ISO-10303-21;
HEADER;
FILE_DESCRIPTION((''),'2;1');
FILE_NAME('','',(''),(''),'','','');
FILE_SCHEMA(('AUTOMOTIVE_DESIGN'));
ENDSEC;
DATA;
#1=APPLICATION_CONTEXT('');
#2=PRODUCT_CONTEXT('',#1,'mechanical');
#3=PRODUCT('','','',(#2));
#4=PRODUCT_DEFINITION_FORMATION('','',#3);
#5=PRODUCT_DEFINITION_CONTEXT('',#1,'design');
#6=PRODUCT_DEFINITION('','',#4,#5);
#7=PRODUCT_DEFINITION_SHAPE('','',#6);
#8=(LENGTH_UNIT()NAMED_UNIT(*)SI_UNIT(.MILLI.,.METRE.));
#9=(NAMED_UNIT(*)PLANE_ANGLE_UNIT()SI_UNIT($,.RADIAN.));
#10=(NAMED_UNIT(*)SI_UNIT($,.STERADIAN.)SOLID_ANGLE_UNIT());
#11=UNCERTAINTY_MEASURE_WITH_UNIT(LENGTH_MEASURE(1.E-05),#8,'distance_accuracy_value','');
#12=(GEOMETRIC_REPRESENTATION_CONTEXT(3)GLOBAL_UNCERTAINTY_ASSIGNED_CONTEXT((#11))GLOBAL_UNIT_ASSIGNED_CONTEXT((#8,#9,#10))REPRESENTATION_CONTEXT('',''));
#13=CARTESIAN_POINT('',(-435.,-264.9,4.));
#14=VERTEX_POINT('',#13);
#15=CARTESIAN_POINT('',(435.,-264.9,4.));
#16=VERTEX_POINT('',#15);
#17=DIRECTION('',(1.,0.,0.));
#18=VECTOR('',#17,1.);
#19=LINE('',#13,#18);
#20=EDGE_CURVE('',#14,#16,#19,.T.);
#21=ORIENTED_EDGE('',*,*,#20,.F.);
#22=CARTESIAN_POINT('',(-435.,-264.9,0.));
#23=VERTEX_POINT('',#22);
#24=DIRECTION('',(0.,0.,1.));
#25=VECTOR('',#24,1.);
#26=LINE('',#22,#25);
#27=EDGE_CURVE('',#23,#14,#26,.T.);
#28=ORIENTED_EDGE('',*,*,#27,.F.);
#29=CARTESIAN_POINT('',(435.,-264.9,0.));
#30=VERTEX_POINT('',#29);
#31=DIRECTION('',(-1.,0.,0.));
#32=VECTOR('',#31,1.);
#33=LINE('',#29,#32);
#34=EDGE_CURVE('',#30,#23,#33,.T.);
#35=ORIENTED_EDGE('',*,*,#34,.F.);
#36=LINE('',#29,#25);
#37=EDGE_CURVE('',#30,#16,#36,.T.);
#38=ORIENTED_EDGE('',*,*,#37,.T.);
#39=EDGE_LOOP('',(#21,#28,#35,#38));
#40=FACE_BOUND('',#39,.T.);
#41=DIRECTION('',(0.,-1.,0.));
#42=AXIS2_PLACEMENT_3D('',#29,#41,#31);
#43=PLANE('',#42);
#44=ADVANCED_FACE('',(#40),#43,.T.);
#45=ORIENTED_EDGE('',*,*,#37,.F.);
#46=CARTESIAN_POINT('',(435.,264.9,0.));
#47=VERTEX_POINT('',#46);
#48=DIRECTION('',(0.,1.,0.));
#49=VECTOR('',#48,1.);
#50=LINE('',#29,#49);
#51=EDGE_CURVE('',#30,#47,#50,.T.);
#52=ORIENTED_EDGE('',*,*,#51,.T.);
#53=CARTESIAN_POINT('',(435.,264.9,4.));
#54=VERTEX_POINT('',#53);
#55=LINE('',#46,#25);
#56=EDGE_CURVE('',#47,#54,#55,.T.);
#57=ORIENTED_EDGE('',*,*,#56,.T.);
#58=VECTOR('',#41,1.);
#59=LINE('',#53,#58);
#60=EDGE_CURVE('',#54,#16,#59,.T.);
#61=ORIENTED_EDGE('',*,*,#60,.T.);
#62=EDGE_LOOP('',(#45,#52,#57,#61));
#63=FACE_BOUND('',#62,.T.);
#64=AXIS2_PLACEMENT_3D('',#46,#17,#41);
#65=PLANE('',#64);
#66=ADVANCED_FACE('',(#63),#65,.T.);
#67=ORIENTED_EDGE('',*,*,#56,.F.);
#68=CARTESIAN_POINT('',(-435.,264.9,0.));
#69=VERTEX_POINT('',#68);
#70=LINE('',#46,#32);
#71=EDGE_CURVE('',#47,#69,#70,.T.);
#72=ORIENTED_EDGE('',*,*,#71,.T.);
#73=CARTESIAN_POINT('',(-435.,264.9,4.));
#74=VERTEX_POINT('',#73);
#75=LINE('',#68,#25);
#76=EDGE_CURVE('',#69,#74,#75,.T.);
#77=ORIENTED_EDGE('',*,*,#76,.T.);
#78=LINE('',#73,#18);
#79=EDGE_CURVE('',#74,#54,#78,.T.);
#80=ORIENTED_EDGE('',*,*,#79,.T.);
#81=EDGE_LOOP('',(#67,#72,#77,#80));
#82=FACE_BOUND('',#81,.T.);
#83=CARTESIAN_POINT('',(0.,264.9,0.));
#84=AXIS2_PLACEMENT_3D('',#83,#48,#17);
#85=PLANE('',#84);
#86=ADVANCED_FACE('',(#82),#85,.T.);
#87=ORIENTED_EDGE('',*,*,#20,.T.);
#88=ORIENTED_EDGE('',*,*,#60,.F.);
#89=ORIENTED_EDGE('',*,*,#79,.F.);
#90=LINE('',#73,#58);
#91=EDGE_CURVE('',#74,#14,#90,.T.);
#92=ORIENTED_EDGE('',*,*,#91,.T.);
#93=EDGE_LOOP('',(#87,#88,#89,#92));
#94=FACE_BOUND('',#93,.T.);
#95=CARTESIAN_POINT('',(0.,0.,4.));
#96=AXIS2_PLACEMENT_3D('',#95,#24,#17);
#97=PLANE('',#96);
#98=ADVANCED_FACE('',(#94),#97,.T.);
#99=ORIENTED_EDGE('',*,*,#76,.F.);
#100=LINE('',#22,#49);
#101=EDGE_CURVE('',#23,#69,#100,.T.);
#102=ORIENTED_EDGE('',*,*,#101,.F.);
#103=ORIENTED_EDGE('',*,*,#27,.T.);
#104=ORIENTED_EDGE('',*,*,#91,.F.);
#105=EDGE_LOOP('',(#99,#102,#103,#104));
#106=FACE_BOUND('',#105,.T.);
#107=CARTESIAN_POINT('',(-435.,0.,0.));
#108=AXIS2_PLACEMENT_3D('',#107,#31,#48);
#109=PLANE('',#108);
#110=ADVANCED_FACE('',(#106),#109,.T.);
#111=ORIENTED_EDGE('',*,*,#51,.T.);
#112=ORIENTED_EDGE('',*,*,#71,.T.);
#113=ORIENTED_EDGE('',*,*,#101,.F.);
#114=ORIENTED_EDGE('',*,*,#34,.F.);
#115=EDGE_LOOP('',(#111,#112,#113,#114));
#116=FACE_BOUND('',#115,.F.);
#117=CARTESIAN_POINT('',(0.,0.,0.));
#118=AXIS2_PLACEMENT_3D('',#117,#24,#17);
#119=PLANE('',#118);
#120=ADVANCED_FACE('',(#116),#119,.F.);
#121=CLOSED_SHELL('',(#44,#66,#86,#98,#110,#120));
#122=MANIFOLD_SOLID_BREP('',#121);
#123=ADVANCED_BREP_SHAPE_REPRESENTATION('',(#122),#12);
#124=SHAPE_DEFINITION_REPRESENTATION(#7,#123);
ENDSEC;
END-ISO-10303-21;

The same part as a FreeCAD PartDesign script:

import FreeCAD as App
import Part
import Sketcher
Q = App.Units.Quantity


def add_polygon(sketch, points):
    """Adds a closed chain of lines whose ends are joined by coincident constraints."""
    first, n = sketch.GeometryCount, len(points)
    for a, b in zip(points, points[1:] + points[:1]):
        sketch.addGeometry(Part.LineSegment(App.Vector(*a, 0), App.Vector(*b, 0)), False)
    for i in range(n):
        sketch.addConstraint(Sketcher.Constraint("Coincident", first + i, 2, first + (i + 1) % n, 1))

doc = App.newDocument("Part")
body = doc.addObject("PartDesign::Body", "Body")

sketch1 = body.newObject("Sketcher::SketchObject", "Sketch")
sketch1.AttachmentSupport = (doc.getObject("XY_Plane"), [""])
sketch1.MapMode = "FlatFace"
add_polygon(sketch1, [(435, 265), (-435, 265), (-435, -265), (435, -265)])
sketch1.addConstraint([
    Sketcher.Constraint("Horizontal", 0),
    Sketcher.Constraint("Vertical", 1),
    Sketcher.Constraint("Horizontal", 2),
    Sketcher.Constraint("Vertical", 3),
    Sketcher.Constraint("Symmetric", 0, 2, 2, 2, -1, 1),
    Sketcher.Constraint("DistanceX", 0, 2, 0, 1, Q("870 mm")),
    Sketcher.Constraint("DistanceY", 1, 2, 1, 1, Q("529.8 mm")),
])
pad1 = body.newObject("PartDesign::Pad", "Pad")
pad1.Profile = sketch1
pad1.Length = 4

doc.recompute()
